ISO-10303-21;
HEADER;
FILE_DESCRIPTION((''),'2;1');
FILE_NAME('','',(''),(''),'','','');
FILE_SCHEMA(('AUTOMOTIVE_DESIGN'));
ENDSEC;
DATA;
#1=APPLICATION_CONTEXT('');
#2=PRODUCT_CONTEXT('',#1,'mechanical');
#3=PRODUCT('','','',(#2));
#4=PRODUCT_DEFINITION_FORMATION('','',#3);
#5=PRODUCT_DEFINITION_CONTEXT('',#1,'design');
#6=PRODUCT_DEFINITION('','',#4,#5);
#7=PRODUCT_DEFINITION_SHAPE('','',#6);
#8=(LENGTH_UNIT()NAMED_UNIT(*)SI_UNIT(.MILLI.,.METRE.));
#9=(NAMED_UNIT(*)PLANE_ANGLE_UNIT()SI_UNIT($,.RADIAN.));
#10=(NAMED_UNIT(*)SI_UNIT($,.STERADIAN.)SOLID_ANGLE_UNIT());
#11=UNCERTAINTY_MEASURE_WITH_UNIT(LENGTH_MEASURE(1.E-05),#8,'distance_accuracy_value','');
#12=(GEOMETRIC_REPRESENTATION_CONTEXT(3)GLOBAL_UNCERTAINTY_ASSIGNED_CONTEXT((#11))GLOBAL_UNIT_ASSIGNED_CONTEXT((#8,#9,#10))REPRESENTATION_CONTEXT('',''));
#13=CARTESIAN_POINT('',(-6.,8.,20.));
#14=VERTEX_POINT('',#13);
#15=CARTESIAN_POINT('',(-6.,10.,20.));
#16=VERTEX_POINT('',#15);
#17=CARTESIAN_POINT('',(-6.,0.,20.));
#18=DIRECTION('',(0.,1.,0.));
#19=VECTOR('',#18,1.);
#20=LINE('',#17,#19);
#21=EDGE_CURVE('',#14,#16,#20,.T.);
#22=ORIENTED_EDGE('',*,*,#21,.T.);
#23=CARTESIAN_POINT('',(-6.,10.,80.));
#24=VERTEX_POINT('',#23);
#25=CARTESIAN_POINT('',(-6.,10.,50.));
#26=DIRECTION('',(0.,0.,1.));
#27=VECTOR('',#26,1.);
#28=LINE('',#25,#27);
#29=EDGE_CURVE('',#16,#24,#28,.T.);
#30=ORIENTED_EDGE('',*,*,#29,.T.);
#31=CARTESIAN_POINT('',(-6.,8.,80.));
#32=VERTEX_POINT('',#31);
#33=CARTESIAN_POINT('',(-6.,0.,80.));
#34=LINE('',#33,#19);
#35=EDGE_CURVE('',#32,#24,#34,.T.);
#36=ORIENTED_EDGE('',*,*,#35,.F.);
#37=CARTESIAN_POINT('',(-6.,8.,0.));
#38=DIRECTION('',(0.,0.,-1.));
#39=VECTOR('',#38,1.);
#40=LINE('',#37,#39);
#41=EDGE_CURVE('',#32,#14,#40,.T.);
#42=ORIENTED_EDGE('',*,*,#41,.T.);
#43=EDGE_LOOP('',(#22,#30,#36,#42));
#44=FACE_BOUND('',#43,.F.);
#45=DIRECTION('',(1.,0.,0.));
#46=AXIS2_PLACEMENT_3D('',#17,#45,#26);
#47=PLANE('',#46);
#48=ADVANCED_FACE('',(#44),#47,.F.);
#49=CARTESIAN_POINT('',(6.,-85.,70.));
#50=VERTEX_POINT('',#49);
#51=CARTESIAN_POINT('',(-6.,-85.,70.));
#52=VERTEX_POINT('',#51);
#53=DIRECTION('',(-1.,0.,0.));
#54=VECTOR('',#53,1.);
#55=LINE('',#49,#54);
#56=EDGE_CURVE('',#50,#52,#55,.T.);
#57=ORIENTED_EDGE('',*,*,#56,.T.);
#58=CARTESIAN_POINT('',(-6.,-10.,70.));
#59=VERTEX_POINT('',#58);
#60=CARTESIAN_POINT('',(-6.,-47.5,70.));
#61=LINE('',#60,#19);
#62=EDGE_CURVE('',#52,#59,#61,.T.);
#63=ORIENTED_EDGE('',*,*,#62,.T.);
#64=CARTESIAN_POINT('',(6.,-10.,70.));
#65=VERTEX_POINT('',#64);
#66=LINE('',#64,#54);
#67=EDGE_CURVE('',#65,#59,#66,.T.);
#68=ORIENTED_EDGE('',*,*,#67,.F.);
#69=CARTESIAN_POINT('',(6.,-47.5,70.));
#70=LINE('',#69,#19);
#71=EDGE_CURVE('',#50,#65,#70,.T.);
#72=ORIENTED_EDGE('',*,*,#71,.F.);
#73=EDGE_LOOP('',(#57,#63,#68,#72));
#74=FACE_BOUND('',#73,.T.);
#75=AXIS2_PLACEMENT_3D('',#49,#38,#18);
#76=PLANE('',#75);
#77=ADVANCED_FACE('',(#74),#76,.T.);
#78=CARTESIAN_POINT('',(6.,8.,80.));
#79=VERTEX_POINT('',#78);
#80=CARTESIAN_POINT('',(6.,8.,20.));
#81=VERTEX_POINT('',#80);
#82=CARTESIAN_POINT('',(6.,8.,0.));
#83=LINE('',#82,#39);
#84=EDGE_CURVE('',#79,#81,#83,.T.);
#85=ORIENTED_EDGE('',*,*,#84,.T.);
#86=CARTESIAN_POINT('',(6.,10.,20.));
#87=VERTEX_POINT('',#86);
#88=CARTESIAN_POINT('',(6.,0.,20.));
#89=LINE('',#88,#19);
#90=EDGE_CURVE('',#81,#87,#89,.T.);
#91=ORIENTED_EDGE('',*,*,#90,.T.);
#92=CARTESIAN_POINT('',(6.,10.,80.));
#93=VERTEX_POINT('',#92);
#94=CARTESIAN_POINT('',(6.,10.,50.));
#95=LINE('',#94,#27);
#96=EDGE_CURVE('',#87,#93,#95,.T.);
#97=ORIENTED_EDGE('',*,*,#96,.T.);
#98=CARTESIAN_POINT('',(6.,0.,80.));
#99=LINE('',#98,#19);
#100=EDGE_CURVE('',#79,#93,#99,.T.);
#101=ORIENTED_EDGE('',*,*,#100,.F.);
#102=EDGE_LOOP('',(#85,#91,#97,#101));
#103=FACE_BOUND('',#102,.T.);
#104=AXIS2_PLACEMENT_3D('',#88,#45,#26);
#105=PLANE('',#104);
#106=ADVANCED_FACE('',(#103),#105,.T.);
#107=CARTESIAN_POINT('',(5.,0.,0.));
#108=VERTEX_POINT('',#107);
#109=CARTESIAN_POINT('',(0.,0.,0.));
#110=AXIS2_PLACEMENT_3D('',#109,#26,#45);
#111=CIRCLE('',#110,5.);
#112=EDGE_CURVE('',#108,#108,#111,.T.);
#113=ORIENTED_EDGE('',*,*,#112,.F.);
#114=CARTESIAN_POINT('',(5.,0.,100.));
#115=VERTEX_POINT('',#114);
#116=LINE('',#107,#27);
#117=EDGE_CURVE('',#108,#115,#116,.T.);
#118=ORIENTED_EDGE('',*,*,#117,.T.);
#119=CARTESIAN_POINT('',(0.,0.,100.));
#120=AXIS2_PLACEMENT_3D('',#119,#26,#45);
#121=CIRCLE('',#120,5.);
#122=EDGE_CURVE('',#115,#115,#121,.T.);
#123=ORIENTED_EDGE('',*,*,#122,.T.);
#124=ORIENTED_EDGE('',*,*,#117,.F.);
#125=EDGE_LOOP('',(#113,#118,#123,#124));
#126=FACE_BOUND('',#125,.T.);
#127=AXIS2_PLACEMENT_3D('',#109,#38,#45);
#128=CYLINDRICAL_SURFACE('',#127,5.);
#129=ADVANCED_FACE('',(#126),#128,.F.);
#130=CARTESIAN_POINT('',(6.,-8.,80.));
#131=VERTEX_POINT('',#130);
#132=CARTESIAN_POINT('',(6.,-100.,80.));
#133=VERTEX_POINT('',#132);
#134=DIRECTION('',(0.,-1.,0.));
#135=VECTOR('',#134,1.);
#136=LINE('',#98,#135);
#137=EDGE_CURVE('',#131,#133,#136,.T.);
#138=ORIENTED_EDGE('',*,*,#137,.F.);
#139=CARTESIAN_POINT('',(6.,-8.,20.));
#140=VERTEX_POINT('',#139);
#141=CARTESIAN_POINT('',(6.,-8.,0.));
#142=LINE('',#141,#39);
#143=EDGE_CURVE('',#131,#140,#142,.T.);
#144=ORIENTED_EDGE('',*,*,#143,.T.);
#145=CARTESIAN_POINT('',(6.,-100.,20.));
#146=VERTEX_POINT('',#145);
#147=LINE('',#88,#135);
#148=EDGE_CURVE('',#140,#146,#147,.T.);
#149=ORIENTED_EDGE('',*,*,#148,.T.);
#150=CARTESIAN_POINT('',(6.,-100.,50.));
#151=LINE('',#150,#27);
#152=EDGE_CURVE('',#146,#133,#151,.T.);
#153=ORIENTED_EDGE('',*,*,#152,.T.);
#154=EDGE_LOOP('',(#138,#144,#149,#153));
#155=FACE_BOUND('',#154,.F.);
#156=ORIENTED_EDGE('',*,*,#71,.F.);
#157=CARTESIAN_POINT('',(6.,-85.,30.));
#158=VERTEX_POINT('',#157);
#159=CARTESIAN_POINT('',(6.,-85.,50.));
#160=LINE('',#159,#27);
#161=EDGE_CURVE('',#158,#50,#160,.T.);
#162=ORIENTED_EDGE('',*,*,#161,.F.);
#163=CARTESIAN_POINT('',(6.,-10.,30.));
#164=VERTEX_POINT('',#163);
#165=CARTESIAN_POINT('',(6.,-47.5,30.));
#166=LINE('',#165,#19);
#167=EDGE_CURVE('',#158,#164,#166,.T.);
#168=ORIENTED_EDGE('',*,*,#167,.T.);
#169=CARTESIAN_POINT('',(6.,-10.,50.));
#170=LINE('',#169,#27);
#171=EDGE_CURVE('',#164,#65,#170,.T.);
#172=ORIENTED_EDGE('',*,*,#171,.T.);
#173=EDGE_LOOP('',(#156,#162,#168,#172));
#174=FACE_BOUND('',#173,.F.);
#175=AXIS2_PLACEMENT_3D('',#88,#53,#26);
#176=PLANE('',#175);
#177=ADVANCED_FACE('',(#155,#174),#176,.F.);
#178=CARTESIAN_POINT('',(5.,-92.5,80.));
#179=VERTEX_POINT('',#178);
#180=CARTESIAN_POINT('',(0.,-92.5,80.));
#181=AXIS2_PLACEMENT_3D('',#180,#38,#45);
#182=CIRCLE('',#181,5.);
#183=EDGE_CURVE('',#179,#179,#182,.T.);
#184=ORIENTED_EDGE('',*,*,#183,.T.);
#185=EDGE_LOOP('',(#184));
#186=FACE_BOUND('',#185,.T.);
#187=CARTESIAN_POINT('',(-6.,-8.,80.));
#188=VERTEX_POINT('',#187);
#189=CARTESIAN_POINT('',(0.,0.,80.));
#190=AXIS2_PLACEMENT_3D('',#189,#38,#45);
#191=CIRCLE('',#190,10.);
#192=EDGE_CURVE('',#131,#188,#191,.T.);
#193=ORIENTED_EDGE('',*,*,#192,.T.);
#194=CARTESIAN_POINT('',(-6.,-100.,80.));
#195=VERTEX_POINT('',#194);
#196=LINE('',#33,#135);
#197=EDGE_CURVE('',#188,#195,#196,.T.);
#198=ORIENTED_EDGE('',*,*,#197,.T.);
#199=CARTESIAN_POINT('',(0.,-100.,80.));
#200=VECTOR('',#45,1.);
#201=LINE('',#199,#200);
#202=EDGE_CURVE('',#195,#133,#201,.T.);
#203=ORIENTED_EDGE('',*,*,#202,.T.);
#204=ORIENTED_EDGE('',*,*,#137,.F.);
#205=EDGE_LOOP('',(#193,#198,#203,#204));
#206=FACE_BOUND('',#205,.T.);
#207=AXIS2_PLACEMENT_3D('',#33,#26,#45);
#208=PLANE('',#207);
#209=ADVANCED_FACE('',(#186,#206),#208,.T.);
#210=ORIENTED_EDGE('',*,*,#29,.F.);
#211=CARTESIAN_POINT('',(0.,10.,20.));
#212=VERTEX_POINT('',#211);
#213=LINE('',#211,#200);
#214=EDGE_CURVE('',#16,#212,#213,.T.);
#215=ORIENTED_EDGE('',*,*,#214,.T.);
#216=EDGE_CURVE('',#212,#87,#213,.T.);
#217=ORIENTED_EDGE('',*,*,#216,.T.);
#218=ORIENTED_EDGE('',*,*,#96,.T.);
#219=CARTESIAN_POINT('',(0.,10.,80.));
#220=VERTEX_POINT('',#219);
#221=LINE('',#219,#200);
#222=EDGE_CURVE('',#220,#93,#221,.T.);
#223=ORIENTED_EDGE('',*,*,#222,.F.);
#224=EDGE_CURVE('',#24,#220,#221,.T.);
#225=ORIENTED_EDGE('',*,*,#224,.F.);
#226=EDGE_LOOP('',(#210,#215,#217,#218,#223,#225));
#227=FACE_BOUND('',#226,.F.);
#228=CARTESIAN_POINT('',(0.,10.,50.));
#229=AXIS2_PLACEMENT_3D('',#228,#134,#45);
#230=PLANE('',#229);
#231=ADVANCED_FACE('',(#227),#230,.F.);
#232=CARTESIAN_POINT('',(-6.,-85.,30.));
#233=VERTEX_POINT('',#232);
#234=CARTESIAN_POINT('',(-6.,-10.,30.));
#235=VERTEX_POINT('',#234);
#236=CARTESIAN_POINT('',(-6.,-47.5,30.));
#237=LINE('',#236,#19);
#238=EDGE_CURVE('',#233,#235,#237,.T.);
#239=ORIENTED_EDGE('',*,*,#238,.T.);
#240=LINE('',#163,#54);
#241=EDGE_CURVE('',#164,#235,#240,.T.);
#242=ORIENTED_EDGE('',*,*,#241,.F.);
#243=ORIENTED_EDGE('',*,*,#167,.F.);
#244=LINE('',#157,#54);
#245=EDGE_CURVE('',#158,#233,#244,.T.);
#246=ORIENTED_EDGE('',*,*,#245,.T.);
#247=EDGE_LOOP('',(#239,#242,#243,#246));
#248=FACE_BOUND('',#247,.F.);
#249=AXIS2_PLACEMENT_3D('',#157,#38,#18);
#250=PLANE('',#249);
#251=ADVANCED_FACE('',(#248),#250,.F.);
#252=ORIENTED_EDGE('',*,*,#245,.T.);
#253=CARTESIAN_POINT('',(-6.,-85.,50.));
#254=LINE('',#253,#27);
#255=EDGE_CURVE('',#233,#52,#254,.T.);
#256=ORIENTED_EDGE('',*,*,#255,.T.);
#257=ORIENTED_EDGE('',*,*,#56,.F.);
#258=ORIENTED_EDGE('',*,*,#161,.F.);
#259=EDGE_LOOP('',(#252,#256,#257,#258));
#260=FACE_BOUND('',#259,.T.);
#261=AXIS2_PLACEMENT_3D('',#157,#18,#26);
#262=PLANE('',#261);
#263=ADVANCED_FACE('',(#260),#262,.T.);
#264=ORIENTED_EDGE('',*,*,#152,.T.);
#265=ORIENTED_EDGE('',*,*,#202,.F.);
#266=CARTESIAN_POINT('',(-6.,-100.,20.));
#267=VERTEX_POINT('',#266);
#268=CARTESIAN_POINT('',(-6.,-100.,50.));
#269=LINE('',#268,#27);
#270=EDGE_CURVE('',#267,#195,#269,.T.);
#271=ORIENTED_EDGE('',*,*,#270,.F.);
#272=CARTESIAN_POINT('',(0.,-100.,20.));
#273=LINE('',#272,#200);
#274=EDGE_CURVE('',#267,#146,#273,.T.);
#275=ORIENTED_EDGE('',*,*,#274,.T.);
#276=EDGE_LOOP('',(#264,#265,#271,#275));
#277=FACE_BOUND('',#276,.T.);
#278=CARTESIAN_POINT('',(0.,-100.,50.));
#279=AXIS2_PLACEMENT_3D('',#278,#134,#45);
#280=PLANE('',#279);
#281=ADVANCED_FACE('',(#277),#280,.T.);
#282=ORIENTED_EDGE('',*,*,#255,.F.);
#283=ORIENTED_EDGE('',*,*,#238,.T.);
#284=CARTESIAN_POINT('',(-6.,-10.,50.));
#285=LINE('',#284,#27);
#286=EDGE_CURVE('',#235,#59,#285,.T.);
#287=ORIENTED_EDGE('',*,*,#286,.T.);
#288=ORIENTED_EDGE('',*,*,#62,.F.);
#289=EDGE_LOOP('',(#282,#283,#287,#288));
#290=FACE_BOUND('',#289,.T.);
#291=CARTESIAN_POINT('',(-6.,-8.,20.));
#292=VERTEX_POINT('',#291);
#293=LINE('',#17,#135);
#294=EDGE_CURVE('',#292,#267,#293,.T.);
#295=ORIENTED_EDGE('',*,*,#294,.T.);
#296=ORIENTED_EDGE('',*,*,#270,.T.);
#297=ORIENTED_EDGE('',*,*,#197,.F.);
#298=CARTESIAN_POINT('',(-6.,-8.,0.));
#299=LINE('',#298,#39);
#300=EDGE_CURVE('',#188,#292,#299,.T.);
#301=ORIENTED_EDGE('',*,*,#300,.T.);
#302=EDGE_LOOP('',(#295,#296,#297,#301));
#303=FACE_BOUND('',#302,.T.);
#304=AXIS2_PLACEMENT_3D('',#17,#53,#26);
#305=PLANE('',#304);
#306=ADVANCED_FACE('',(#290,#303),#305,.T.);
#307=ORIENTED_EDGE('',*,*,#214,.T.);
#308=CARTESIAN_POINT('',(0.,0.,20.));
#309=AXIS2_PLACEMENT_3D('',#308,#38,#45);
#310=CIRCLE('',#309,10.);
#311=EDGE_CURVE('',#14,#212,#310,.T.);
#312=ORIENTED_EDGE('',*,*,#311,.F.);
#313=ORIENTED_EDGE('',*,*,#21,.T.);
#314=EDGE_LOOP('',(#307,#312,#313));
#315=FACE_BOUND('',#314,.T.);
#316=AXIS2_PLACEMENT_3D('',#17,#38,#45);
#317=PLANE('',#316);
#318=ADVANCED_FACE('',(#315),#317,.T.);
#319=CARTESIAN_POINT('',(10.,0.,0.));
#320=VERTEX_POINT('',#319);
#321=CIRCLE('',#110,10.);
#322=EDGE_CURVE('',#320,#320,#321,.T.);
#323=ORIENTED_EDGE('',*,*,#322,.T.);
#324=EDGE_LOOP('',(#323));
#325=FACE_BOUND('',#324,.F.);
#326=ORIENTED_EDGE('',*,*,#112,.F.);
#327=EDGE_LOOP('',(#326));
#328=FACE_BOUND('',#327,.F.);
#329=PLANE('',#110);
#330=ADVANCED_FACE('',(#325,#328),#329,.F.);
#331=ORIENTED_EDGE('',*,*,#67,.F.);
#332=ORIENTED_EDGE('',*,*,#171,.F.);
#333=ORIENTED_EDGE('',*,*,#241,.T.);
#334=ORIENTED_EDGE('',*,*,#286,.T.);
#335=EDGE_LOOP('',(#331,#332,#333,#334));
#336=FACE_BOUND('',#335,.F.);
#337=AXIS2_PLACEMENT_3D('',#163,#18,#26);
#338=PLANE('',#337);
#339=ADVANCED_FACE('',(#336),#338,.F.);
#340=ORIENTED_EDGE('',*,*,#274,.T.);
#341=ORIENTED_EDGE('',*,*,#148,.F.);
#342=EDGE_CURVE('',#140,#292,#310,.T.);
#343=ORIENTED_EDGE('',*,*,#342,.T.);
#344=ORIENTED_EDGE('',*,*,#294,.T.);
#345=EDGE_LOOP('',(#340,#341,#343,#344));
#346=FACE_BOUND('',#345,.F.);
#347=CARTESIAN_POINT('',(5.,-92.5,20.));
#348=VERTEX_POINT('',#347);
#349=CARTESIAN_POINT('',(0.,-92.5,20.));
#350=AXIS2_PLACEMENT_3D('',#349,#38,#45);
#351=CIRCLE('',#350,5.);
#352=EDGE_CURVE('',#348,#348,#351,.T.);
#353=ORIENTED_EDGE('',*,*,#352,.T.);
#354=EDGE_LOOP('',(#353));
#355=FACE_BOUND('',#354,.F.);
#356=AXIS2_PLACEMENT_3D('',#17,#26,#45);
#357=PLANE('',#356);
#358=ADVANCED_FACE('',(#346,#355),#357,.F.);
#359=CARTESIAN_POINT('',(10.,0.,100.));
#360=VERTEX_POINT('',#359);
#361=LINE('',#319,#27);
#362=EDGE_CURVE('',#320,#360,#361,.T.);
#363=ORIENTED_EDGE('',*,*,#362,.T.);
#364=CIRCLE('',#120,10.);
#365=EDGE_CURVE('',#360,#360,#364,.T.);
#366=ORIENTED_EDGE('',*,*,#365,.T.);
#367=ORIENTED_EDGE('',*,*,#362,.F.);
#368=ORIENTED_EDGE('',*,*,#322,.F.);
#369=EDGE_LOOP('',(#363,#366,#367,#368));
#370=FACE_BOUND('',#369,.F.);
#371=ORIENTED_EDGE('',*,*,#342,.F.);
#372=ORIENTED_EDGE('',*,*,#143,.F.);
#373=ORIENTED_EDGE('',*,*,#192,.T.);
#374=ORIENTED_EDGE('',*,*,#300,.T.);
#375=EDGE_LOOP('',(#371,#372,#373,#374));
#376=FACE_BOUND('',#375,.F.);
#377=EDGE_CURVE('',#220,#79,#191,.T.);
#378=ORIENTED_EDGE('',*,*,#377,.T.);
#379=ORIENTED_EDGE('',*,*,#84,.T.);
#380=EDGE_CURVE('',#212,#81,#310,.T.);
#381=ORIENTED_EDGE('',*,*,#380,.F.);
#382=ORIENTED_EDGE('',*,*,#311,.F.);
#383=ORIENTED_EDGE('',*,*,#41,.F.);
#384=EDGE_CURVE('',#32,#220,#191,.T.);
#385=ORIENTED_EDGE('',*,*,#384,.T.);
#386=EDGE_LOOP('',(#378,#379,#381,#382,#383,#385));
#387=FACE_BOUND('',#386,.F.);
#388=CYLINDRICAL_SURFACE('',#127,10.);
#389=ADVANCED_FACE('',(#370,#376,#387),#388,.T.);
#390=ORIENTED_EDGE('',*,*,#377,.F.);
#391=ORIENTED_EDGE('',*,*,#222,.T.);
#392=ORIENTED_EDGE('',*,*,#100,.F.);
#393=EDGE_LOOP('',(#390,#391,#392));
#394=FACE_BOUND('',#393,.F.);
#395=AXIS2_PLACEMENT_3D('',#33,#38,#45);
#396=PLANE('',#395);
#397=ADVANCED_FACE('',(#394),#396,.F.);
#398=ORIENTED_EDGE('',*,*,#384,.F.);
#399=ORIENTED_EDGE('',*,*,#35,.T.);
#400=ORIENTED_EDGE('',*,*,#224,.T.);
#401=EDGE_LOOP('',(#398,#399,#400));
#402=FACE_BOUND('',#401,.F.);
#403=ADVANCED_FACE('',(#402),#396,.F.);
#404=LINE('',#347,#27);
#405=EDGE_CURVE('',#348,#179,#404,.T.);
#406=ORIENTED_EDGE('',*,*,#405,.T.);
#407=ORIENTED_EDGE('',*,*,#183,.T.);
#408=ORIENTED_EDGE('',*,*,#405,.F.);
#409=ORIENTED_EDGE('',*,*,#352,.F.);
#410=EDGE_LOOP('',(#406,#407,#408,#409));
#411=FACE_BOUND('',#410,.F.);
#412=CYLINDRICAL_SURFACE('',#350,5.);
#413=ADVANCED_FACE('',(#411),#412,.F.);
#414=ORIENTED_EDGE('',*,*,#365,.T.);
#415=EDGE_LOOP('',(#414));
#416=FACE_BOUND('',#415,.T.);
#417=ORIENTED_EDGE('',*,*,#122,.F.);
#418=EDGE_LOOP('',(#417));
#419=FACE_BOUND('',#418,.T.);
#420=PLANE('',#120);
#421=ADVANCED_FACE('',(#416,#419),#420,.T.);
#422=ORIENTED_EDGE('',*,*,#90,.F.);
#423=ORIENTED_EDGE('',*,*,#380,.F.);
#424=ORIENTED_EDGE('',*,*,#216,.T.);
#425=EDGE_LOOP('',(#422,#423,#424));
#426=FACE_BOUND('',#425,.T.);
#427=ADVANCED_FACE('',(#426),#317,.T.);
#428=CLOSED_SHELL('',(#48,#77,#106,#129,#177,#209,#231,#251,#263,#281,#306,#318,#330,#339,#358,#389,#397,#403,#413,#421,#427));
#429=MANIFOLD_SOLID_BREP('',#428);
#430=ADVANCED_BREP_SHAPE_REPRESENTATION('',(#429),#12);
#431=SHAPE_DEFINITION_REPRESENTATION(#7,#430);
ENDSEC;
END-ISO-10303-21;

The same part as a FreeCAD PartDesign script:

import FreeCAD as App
import Part
import Sketcher
from FreeCAD import Vector


def add_polygon(sketch, points):
    """Adds a closed chain of lines whose ends are joined by coincident constraints."""
    first, n = sketch.GeometryCount, len(points)
    for a, b in zip(points, points[1:] + points[:1]):
        sketch.addGeometry(Part.LineSegment(App.Vector(*a, 0), App.Vector(*b, 0)), False)
    for i in range(n):
        sketch.addConstraint(Sketcher.Constraint("Coincident", first + i, 2, first + (i + 1) % n, 1))

doc = App.newDocument("Part")
body = doc.addObject("PartDesign::Body", "Body")

sketch1 = doc.addObject("Sketcher::SketchObject", "Sketch")
body.addObject(sketch1)
sketch1.AttachmentSupport = (doc.XY_Plane, [""])
sketch1.MapMode = "FlatFace"
sketch1.addGeometry(Part.Circle(Vector(0, 0, 0), Vector(0, 0, 1), 10), False)
sketch1.addConstraint(Sketcher.Constraint("Coincident", 0, 3, -1, 1))
sketch1.addConstraint(Sketcher.Constraint("Diameter", 0, 20.0))
pad1 = doc.addObject("PartDesign::Pad", "Pad")
body.addObject(pad1)
pad1.Profile = sketch1
pad1.Length = 100

sketch2 = doc.addObject("Sketcher::SketchObject", "Sketch001")
body.addObject(sketch2)
sketch2.AttachmentSupport = (doc.XZ_Plane, [""])
sketch2.MapMode = "FlatFace"
add_polygon(sketch2, [(-6, 80), (-6, 20), (6, 20), (6, 80)])
sketch2.addConstraint(Sketcher.Constraint("Vertical", 0))
sketch2.addConstraint(Sketcher.Constraint("Horizontal", 1))
sketch2.addConstraint(Sketcher.Constraint("Vertical", 2))
sketch2.addConstraint(Sketcher.Constraint("Horizontal", 3))
sketch2.addConstraint(Sketcher.Constraint("DistanceX", 1, 1, 1, 2, 12.0))
sketch2.addConstraint(Sketcher.Constraint("DistanceY", 0, 2, 0, 1, 60.0))
sketch2.addConstraint(Sketcher.Constraint("DistanceX", 0, 2, -1, 1, 6.0))
sketch2.addConstraint(Sketcher.Constraint("DistanceY", -1, 1, 0, 2, 20.0))
pad2 = doc.addObject("PartDesign::Pad", "Pad001")
body.addObject(pad2)
pad2.Profile = sketch2
pad2.Type = "TwoLengths"
pad2.Length = 100
pad2.Length2 = 10

sketch3 = doc.addObject("Sketcher::SketchObject", "Sketch002")
body.addObject(sketch3)
sketch3.AttachmentSupport = (doc.YZ_Plane, [""])
sketch3.MapMode = "FlatFace"
sketch3.AttachmentOffset = App.Placement(Vector(0, 0, 6), App.Rotation())
add_polygon(sketch3, [(-85, 70), (-85, 30), (-10, 30), (-10, 70)])
sketch3.addConstraint(Sketcher.Constraint("Vertical", 0))
sketch3.addConstraint(Sketcher.Constraint("Horizontal", 1))
sketch3.addConstraint(Sketcher.Constraint("Vertical", 2))
sketch3.addConstraint(Sketcher.Constraint("Horizontal", 3))
sketch3.addConstraint(Sketcher.Constraint("DistanceX", 1, 1, 1, 2, 75.0))
sketch3.addConstraint(Sketcher.Constraint("DistanceY", 0, 2, 0, 1, 40.0))
sketch3.addConstraint(Sketcher.Constraint("DistanceX", 0, 2, -1, 1, 85.0))
sketch3.addConstraint(Sketcher.Constraint("DistanceY", -1, 1, 0, 2, 30.0))
pocket1 = doc.addObject("PartDesign::Pocket", "Pocket")
body.addObject(pocket1)
pocket1.Profile = sketch3
pocket1.Type = "ThroughAll"

sketch4 = doc.addObject("Sketcher::SketchObject", "Sketch003")
body.addObject(sketch4)
sketch4.AttachmentSupport = (doc.XY_Plane, [""])
sketch4.MapMode = "FlatFace"
sketch4.addGeometry(Part.Circle(Vector(0, 0, 0), Vector(0, 0, 1), 5), False)
sketch4.addConstraint(Sketcher.Constraint("Coincident", 0, 3, -1, 1))
sketch4.addConstraint(Sketcher.Constraint("Diameter", 0, 10.0))
pocket2 = doc.addObject("PartDesign::Pocket", "Pocket001")
body.addObject(pocket2)
pocket2.Profile = sketch4
pocket2.Type = "ThroughAll"
pocket2.Reversed = True

sketch5 = doc.addObject("Sketcher::SketchObject", "Sketch004")
body.addObject(sketch5)
sketch5.AttachmentSupport = (doc.XY_Plane, [""])
sketch5.MapMode = "FlatFace"
sketch5.AttachmentOffset = App.Placement(Vector(0, 0, 20), App.Rotation())
sketch5.addGeometry(Part.Circle(Vector(0, -92, 0), Vector(0, 0, 1), 5), False)
sketch5.addConstraint(Sketcher.Constraint("PointOnObject", 0, 3, -2))
sketch5.addConstraint(Sketcher.Constraint("Diameter", 0, 10.0))
sketch5.addConstraint(Sketcher.Constraint("DistanceY", 0, 3, -1, 1, 92.5))
pocket3 = doc.addObject("PartDesign::Pocket", "Pocket002")
body.addObject(pocket3)
pocket3.Profile = sketch5
pocket3.Type = "ThroughAll"
pocket3.Reversed = True

doc.recompute()
